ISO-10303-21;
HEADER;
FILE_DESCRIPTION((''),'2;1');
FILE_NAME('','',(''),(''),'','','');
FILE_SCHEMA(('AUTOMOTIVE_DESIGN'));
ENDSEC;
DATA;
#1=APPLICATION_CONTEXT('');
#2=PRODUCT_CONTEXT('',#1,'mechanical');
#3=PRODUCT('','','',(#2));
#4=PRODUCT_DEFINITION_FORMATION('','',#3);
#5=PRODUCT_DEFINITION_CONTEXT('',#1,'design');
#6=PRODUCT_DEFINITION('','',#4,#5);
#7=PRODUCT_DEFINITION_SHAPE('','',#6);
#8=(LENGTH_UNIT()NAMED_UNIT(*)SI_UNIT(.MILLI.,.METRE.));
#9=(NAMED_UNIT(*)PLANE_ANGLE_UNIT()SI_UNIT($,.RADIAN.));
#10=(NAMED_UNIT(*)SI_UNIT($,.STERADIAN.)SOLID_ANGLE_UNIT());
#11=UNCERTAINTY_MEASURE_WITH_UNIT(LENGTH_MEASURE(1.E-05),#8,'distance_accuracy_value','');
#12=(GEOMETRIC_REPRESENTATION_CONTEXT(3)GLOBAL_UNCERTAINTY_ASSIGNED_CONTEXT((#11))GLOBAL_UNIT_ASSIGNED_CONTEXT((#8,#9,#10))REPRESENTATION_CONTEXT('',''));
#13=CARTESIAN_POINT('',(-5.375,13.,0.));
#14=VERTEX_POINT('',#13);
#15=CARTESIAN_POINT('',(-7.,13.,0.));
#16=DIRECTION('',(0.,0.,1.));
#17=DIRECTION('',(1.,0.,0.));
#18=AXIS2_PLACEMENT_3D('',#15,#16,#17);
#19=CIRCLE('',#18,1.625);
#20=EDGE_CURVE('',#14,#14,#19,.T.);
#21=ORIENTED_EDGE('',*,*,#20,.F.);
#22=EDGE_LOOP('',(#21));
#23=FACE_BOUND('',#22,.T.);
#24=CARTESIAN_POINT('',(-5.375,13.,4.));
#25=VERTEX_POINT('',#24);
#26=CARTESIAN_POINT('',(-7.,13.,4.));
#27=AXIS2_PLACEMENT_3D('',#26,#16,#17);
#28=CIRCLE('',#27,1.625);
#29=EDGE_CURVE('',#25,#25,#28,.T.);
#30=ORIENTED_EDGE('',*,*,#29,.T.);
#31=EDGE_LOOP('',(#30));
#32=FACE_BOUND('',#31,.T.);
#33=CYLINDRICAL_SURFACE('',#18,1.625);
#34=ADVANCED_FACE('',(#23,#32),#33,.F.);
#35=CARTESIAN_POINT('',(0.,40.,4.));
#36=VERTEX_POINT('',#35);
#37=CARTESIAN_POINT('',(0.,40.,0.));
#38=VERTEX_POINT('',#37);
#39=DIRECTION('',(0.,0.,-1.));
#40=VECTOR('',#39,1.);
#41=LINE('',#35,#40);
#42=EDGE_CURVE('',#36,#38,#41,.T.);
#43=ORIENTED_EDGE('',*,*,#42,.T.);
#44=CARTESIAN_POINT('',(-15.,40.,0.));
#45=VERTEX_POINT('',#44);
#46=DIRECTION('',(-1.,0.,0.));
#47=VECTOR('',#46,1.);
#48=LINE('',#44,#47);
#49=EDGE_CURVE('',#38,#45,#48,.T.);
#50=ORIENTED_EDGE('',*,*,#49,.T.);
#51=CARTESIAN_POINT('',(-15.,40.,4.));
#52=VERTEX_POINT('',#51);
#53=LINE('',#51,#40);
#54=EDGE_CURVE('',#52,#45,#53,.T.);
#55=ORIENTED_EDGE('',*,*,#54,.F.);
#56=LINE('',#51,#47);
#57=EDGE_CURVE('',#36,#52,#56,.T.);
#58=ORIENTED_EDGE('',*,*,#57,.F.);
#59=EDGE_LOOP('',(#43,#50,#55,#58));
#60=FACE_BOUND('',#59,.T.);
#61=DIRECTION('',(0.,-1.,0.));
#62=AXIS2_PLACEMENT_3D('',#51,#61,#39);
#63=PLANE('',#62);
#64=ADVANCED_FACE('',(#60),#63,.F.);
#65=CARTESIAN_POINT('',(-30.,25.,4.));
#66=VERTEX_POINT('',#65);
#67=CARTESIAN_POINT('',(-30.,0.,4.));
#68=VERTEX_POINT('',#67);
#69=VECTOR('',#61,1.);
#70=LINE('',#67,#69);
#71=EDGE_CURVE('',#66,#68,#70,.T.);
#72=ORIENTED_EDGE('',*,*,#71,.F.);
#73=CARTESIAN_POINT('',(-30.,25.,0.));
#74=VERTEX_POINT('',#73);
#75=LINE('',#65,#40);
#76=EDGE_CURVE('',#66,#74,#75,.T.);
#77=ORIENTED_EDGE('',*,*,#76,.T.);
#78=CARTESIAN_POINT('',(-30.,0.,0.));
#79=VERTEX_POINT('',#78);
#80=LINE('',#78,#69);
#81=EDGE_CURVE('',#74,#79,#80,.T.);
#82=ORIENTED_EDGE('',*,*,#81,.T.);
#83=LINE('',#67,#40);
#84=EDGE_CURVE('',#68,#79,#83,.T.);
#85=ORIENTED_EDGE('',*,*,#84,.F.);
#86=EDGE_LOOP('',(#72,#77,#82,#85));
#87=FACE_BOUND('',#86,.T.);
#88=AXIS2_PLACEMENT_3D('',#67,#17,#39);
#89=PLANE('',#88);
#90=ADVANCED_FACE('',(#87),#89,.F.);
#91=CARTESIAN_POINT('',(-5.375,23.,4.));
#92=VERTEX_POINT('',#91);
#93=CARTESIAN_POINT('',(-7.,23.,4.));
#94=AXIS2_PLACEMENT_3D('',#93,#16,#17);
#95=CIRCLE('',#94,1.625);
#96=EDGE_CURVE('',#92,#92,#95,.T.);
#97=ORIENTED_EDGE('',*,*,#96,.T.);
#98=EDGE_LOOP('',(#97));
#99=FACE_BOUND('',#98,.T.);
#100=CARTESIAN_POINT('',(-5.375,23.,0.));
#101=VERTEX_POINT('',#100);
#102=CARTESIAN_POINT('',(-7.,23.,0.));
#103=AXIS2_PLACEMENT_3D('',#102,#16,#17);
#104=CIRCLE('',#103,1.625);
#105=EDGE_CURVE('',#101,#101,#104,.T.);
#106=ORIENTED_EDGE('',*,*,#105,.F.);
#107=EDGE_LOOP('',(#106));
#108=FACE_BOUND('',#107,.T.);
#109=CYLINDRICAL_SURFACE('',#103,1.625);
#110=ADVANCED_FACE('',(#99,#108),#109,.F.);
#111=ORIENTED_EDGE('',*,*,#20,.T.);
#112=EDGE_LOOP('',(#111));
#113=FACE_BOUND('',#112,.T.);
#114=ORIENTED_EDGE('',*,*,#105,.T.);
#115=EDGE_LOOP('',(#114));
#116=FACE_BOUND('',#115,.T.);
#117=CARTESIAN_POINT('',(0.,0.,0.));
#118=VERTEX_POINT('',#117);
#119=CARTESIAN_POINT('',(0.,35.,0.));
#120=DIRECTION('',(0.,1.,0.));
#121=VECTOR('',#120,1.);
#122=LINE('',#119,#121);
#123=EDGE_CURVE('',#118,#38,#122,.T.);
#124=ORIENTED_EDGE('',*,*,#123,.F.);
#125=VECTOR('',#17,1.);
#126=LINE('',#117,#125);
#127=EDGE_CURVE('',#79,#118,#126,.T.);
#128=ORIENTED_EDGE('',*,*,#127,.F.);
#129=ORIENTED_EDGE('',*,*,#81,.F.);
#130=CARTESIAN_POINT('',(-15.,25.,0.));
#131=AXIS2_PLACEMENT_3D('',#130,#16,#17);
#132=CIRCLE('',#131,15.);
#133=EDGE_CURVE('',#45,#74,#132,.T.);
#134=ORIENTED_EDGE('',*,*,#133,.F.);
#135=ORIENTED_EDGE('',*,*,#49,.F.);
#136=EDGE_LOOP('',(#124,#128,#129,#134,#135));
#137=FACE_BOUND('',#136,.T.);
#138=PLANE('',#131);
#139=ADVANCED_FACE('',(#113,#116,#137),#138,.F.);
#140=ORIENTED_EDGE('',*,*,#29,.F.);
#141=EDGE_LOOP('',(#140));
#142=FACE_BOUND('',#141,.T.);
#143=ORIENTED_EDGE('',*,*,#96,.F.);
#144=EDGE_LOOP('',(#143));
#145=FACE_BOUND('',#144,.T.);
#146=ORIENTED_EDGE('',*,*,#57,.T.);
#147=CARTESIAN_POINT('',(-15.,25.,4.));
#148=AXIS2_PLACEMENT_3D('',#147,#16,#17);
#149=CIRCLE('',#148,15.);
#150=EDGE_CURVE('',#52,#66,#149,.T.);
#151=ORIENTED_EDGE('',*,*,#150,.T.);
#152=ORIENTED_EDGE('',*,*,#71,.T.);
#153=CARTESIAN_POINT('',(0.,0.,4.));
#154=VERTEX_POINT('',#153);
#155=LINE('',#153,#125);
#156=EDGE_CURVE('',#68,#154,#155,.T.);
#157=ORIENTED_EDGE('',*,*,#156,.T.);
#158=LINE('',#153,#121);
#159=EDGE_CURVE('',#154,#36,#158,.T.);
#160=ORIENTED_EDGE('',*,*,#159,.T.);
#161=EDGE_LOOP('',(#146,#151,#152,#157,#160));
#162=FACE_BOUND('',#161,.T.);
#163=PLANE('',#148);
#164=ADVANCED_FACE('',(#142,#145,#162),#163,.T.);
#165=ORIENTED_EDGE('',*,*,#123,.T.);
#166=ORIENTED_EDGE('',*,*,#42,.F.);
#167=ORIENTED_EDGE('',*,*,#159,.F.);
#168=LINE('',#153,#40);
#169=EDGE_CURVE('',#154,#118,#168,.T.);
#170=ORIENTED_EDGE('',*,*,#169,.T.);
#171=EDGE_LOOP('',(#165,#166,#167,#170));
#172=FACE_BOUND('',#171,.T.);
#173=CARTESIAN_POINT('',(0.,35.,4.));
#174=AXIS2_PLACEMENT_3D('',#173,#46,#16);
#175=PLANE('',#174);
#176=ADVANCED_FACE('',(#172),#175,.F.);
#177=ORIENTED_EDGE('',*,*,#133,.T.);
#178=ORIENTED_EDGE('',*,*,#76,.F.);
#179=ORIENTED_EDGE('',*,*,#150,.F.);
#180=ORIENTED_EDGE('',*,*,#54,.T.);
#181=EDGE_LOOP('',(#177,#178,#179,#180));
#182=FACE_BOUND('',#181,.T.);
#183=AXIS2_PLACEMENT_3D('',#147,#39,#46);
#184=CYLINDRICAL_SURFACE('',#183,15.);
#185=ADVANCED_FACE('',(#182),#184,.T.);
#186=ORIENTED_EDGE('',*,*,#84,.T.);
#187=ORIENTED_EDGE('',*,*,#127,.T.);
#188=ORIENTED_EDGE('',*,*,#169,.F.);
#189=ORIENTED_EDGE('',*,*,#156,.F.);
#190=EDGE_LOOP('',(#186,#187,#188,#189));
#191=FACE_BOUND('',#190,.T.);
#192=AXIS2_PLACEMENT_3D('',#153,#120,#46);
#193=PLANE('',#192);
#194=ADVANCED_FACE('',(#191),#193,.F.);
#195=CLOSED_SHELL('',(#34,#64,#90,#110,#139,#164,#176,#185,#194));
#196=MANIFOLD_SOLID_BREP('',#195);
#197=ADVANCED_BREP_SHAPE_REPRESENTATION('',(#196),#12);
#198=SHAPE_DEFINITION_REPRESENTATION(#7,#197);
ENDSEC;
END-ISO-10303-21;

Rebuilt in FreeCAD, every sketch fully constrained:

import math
import FreeCAD as App
import Part
import Sketcher

doc = App.newDocument("Part")
body = doc.addObject("PartDesign::Body", "Body")

sketch1 = body.newObject("Sketcher::SketchObject", "Sketch")
sketch1.AttachmentSupport = (doc.getObject("XY_Plane"), [""])
sketch1.MapMode = "FlatFace"
sketch1.addGeometry([
    Part.LineSegment(App.Vector(0, 40, 0), App.Vector(-15, 40, 0)),
    Part.ArcOfCircle(Part.Circle(App.Vector(-15, 25, 0), App.Vector(0, 0, 1), 15), math.radians(90), math.radians(180)),
    Part.LineSegment(App.Vector(-30, 25, 0), App.Vector(-30, 0, 0)),
    Part.LineSegment(App.Vector(-30, 0, 0), App.Vector(0, 0, 0)),
    Part.LineSegment(App.Vector(0, 0, 0), App.Vector(0, 40, 0)),
], False)
sketch1.addConstraint([
    Sketcher.Constraint("Tangent", 0, 2, 1, 1),
    Sketcher.Constraint("Tangent", 1, 2, 2, 1),
    Sketcher.Constraint("Coincident", 2, 2, 3, 1),
    Sketcher.Constraint("Coincident", 3, 2, 4, 1),
    Sketcher.Constraint("Coincident", 4, 2, 0, 1),
    Sketcher.Constraint("Horizontal", 0),
    Sketcher.Constraint("Vertical", 2),
    Sketcher.Constraint("Horizontal", 3),
    Sketcher.Constraint("Vertical", 4),
    Sketcher.Constraint("Coincident", 3, 2, -1, 1),
    Sketcher.Constraint("Radius", 1, 15.0),
    Sketcher.Constraint("DistanceX", 0, 2, 0, 1, 15.0),
    Sketcher.Constraint("DistanceY", 2, 2, 2, 1, 25.0),
])
pad1 = body.newObject("PartDesign::Pad", "Pad")
pad1.Profile = sketch1
pad1.Length = 4

sketch2 = body.newObject("Sketcher::SketchObject", "Sketch001")
sketch2.AttachmentSupport = (doc.getObject("XY_Plane"), [""])
sketch2.MapMode = "FlatFace"
sketch2.AttachmentOffset = App.Placement(App.Vector(0, 0, 4), App.Rotation())
sketch2.addGeometry([
    Part.Circle(App.Vector(-7, 23, 0), App.Vector(0, 0, 1), 1.6),
    Part.Circle(App.Vector(-7, 13, 0), App.Vector(0, 0, 1), 1.6),
], False)
sketch2.addConstraint([
    Sketcher.Constraint("Equal", 0, 1),
    Sketcher.Constraint("Vertical", 0, 3, 1, 3),
    Sketcher.Constraint("Diameter", 0, 3.25),
    Sketcher.Constraint("DistanceX", 0, 3, -1, 1, 7.0),
    Sketcher.Constraint("DistanceY", -1, 1, 0, 3, 23.0),
    Sketcher.Constraint("DistanceY", -1, 1, 1, 3, 13.0),
])
pocket1 = body.newObject("PartDesign::Pocket", "Pocket")
pocket1.Profile = sketch2
pocket1.Type = "ThroughAll"

doc.recompute()
